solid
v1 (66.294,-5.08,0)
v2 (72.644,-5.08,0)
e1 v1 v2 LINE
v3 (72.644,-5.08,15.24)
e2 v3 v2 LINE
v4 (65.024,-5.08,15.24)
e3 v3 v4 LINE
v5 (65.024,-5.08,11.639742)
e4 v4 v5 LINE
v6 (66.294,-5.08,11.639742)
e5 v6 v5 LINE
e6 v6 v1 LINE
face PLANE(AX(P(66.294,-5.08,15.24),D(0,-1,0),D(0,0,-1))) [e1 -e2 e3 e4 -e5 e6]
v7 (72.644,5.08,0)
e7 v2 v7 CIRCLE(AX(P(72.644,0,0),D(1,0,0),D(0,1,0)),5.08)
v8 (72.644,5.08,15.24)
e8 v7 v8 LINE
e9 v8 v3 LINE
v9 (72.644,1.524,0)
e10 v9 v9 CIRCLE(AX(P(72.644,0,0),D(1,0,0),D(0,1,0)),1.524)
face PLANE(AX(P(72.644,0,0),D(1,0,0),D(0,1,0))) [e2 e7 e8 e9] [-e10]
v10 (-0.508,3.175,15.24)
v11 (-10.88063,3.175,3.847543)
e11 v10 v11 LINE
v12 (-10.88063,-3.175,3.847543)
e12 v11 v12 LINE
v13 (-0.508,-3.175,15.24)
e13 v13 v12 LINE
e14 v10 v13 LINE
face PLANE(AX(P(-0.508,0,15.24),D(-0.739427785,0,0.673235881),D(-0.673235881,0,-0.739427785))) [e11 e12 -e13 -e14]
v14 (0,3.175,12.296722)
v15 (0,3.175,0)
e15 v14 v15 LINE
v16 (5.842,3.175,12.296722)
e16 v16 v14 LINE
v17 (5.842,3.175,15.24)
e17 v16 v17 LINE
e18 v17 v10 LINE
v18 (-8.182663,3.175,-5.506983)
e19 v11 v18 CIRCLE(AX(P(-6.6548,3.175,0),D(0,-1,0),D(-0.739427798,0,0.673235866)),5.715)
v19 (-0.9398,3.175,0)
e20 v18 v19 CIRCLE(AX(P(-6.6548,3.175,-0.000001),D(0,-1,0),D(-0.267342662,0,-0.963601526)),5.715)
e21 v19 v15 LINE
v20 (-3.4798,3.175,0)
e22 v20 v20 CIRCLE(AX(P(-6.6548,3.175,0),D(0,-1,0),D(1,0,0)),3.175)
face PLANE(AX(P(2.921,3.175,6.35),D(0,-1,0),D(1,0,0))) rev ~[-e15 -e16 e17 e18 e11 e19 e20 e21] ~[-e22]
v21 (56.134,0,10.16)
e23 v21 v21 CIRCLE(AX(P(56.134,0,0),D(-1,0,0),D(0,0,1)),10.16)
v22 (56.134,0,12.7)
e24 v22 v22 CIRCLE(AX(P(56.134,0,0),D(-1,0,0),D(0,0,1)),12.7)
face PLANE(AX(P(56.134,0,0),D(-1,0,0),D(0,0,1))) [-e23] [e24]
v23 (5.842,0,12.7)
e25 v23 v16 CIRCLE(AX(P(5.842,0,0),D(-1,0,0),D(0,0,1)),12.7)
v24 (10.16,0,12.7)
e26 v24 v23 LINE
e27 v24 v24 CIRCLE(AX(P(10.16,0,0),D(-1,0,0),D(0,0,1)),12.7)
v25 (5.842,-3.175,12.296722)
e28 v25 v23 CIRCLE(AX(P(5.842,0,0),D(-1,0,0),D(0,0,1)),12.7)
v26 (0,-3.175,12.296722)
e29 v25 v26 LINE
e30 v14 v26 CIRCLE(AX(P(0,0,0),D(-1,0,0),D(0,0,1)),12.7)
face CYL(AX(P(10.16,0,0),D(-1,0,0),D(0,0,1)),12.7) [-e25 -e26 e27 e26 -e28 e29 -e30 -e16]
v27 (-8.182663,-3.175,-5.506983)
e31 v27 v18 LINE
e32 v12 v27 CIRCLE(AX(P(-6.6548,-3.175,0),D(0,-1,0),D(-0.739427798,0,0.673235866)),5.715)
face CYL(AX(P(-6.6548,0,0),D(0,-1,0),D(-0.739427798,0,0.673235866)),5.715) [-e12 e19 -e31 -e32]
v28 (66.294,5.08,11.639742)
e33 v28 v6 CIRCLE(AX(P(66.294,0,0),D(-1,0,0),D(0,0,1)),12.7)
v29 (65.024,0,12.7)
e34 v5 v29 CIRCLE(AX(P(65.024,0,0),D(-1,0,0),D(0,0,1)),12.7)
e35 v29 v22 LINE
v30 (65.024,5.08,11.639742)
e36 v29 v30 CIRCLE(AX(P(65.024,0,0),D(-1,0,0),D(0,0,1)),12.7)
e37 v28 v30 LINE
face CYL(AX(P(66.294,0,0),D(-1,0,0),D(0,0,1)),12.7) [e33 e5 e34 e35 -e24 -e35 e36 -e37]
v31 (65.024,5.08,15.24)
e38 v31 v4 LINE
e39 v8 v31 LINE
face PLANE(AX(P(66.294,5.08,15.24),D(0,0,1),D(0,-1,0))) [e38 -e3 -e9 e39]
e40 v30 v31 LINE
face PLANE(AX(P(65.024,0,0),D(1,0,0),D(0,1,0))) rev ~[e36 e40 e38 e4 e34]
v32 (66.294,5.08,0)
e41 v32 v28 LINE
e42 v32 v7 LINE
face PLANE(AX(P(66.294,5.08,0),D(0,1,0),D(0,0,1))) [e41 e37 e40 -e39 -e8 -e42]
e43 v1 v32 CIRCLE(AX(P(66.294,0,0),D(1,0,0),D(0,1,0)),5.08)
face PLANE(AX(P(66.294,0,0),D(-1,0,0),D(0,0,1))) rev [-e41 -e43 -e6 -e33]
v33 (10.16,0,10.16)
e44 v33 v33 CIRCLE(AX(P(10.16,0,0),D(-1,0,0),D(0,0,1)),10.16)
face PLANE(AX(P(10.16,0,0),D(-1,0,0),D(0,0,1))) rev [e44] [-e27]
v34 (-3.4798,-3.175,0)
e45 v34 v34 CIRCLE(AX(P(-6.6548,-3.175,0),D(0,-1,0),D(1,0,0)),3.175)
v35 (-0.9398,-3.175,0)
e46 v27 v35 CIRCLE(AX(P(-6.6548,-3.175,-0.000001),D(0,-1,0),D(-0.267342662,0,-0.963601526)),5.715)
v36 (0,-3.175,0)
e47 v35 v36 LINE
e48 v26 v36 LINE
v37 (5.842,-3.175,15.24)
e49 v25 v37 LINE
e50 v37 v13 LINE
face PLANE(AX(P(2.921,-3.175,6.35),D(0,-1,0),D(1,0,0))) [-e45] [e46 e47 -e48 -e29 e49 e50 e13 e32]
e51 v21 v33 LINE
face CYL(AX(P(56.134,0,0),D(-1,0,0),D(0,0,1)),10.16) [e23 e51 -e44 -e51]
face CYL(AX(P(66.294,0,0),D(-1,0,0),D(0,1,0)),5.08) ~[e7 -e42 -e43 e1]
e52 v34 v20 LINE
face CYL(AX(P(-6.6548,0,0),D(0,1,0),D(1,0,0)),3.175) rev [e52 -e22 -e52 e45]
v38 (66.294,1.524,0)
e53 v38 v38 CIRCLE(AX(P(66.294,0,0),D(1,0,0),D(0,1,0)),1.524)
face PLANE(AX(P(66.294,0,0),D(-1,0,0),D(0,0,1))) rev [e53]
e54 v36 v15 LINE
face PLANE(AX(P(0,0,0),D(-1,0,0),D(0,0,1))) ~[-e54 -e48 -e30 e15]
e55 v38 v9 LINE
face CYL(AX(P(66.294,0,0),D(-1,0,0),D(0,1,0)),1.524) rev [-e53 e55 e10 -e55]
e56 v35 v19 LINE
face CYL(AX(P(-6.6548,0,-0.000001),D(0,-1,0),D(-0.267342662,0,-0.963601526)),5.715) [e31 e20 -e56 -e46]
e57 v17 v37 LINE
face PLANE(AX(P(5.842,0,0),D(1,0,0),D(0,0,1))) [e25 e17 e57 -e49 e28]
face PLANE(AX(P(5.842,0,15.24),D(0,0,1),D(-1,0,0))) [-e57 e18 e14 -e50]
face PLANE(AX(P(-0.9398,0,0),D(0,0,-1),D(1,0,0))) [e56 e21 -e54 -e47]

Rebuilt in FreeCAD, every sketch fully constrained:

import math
import FreeCAD as App
import Part
import Sketcher

V = App.Vector
Q = App.Units.Quantity

doc = App.newDocument("Part")
params = doc.addObject("Spreadsheet::Sheet", "Params")
for row, (alias, value) in enumerate([
    ("sketch1_width", "0.4 in"),
    ("sketch1_height", "0.5 in"),
    ("sketch1_height2", "0.1 in"),
    ("sketch1_width2", "1.81 in"),
    ("revolution_angle", "360 deg"),
    ("sketch2_diameter", "0.25 in"),
    ("sketch2_height", "0.6 in"),
    ("sketch2_radius", "0.225 in"),
    ("sketch2_width", "0.25 in"),
    ("sketch2_width2", "0.267 in"),
    ("pad1_length", "0.25 in"),
    ("sketch3_radius", "0.2 in"),
    ("sketch3_diameter", "0.12 in"),
    ("sketch3_height", "0.6 in"),
    ("pad2_length", "0.25 in"),
    ("pad2_length2", "0.05 in"),
], start=1):
    params.set(f"A{row}", alias)
    params.set(f"B{row}", "=" + value)
    params.setAlias(f"B{row}", alias)

body = doc.addObject("PartDesign::Body", "Body")

# Sketch on XZ plane
sketch1 = body.newObject("Sketcher::SketchObject", "Sketch")
sketch1.AttachmentSupport = (doc.getObject("XZ_Plane"), [""])
sketch1.MapMode = "FlatFace"
sketch1.addGeometry(Part.LineSegment(V(66.3, 0, 0), V(66.3, 12.7, 0)), False)
sketch1.addGeometry(Part.LineSegment(V(66.3, 12.7, 0), V(56.1, 12.7, 0)), False)
sketch1.addGeometry(Part.LineSegment(V(56.1, 12.7, 0), V(56.1, 10.2, 0)), False)
sketch1.addGeometry(Part.LineSegment(V(56.1, 10.2, 0), V(10.2, 10.2, 0)), False)
sketch1.addGeometry(Part.LineSegment(V(10.2, 10.2, 0), V(10.2, 12.7, 0)), False)
sketch1.addGeometry(Part.LineSegment(V(10.2, 12.7, 0), V(0, 12.7, 0)), False)
sketch1.addGeometry(Part.LineSegment(V(0, 12.7, 0), V(0, 0, 0)), False)
sketch1.addGeometry(Part.LineSegment(V(0, 0, 0), V(66.3, 0, 0)), False)
sketch1.addConstraint(Sketcher.Constraint("Coincident", 0, 2, 1, 1))
sketch1.addConstraint(Sketcher.Constraint("Coincident", 1, 2, 2, 1))
sketch1.addConstraint(Sketcher.Constraint("Coincident", 2, 2, 3, 1))
sketch1.addConstraint(Sketcher.Constraint("Coincident", 3, 2, 4, 1))
sketch1.addConstraint(Sketcher.Constraint("Coincident", 4, 2, 5, 1))
sketch1.addConstraint(Sketcher.Constraint("Coincident", 5, 2, 6, 1))
sketch1.addConstraint(Sketcher.Constraint("Coincident", 6, 2, 7, 1))
sketch1.addConstraint(Sketcher.Constraint("Coincident", 7, 2, 0, 1))
sketch1.addConstraint(Sketcher.Constraint("Vertical", 0))
sketch1.addConstraint(Sketcher.Constraint("Horizontal", 1))
sketch1.addConstraint(Sketcher.Constraint("Vertical", 2))
sketch1.addConstraint(Sketcher.Constraint("Horizontal", 3))
sketch1.addConstraint(Sketcher.Constraint("Vertical", 4))
sketch1.addConstraint(Sketcher.Constraint("Horizontal", 5))
sketch1.addConstraint(Sketcher.Constraint("Vertical", 6))
sketch1.addConstraint(Sketcher.Constraint("Horizontal", 7))
sketch1.addConstraint(Sketcher.Constraint("Coincident", 6, 2, -1, 1))
sketch1.addConstraint(Sketcher.Constraint("Horizontal", 1, 2, 4, 2))
sketch1.addConstraint(Sketcher.Constraint("Equal", 1, 5))
sketch1.addConstraint(Sketcher.Constraint("DistanceX", 1, 2, 1, 1, Q("0.4 in")))
sketch1.addConstraint(Sketcher.Constraint("DistanceY", 0, 1, 0, 2, Q("0.5 in")))
sketch1.addConstraint(Sketcher.Constraint("DistanceY", 2, 2, 2, 1, Q("0.1 in")))
sketch1.addConstraint(Sketcher.Constraint("DistanceX", 3, 2, 3, 1, Q("1.81 in")))
sketch1.setExpression("Constraints[19]", "Params.sketch1_width")
sketch1.setExpression("Constraints[20]", "Params.sketch1_height")
sketch1.setExpression("Constraints[21]", "Params.sketch1_height2")
sketch1.setExpression("Constraints[22]", "Params.sketch1_width2")
revolution = body.newObject("PartDesign::Revolution", "Revolution")
revolution.Profile = sketch1
revolution.ReferenceAxis = (sketch1, ["H_Axis"])
revolution.setExpression("Angle", "Params.revolution_angle")

# Sketch on XZ plane
sketch2 = body.newObject("Sketcher::SketchObject", "Sketch001")
sketch2.AttachmentSupport = (doc.getObject("XZ_Plane"), [""])
sketch2.MapMode = "FlatFace"
sketch2.addGeometry(Part.LineSegment(V(5.8, 0, 0), V(5.8, 15.2, 0)), False)
sketch2.addGeometry(Part.LineSegment(V(5.8, 15.2, 0), V(-0.5, 15.2, 0)), False)
sketch2.addGeometry(Part.LineSegment(V(-0.5, 15.2, 0), V(-10.9, 3.8, 0)), False)
sketch2.addGeometry(Part.ArcOfCircle(Part.Circle(V(-6.7, 0, 0), V(0, 0, 1), 5.7), math.radians(138), math.radians(254)), False)
sketch2.addGeometry(Part.ArcOfCircle(Part.Circle(V(-6.7, 0, 0), V(0, 0, 1), 5.7), math.radians(-106), math.radians(0)), False)
sketch2.addGeometry(Part.LineSegment(V(-0.9, 0, 0), V(5.8, 0, 0)), False)
sketch2.addGeometry(Part.Circle(V(-6.7, 0, 0), V(0, 0, 1), 3.2), False)
sketch2.addConstraint(Sketcher.Constraint("Coincident", 0, 2, 1, 1))
sketch2.addConstraint(Sketcher.Constraint("Coincident", 1, 2, 2, 1))
sketch2.addConstraint(Sketcher.Constraint("Tangent", 2, 2, 3, 1))
sketch2.addConstraint(Sketcher.Constraint("Tangent", 3, 2, 4, 1))
sketch2.addConstraint(Sketcher.Constraint("Coincident", 4, 2, 5, 1))
sketch2.addConstraint(Sketcher.Constraint("Coincident", 5, 2, 0, 1))
sketch2.addConstraint(Sketcher.Constraint("Vertical", 0))
sketch2.addConstraint(Sketcher.Constraint("Horizontal", 1))
sketch2.addConstraint(Sketcher.Constraint("Horizontal", 5))
sketch2.addConstraint(Sketcher.Constraint("Coincident", 6, 3, 3, 3))
sketch2.addConstraint(Sketcher.Constraint("Equal", 3, 4))
sketch2.addConstraint(Sketcher.Constraint("PointOnObject", 3, 3, -1))
sketch2.addConstraint(Sketcher.Constraint("PointOnObject", 4, 2, -1))
sketch2.addConstraint(Sketcher.Constraint("Diameter", 6, Q("0.25 in")))
sketch2.addConstraint(Sketcher.Constraint("DistanceY", 0, 1, 0, 2, Q("0.6 in")))
sketch2.addConstraint(Sketcher.Constraint("Radius", 3, Q("0.225 in")))
sketch2.addConstraint(Sketcher.Constraint("DistanceX", 1, 2, 1, 1, Q("0.25 in")))
sketch2.addConstraint(Sketcher.Constraint("DistanceX", 5, 1, 5, 2, Q("0.267 in")))
sketch2.addConstraint(Sketcher.Constraint("DistanceX", -1, 1, 0, 2, Q("0.23 in")))
sketch2.addConstraint(Sketcher.Constraint("DistanceX", 3, 2, -1, 1, Q("8.182663 mm")))
sketch2.setExpression("Constraints[13]", "Params.sketch2_diameter")
sketch2.setExpression("Constraints[14]", "Params.sketch2_height")
sketch2.setExpression("Constraints[15]", "Params.sketch2_radius")
sketch2.setExpression("Constraints[16]", "Params.sketch2_width")
sketch2.setExpression("Constraints[17]", "Params.sketch2_width2")
pad1 = body.newObject("PartDesign::Pad", "Pad")
pad1.Profile = sketch2
pad1.setExpression("Length", "Params.pad1_length")
pad1.Midplane = True

# Sketch on YZ plane
sketch3 = body.newObject("Sketcher::SketchObject", "Sketch002")
sketch3.AttachmentSupport = (doc.getObject("YZ_Plane"), [""])
sketch3.MapMode = "FlatFace"
sketch3.AttachmentOffset = App.Placement(V(0, 0, 2.61 * 25.4), App.Rotation())
sketch3.addGeometry(Part.ArcOfCircle(Part.Circle(V(0, 0, 0), V(0, 0, 1), 5.1), math.radians(180), math.radians(360)), False)
sketch3.addGeometry(Part.LineSegment(V(5.1, 0, 0), V(5.1, 15.2, 0)), False)
sketch3.addGeometry(Part.LineSegment(V(5.1, 15.2, 0), V(-5.1, 15.2, 0)), False)
sketch3.addGeometry(Part.LineSegment(V(-5.1, 15.2, 0), V(-5.1, 0, 0)), False)
sketch3.addGeometry(Part.Circle(V(0, 0, 0), V(0, 0, 1), 1.5), False)
sketch3.addConstraint(Sketcher.Constraint("Tangent", 0, 2, 1, 1))
sketch3.addConstraint(Sketcher.Constraint("Coincident", 1, 2, 2, 1))
sketch3.addConstraint(Sketcher.Constraint("Coincident", 2, 2, 3, 1))
sketch3.addConstraint(Sketcher.Constraint("Tangent", 3, 2, 0, 1))
sketch3.addConstraint(Sketcher.Constraint("Vertical", 1))
sketch3.addConstraint(Sketcher.Constraint("Horizontal", 2))
sketch3.addConstraint(Sketcher.Constraint("Vertical", 3))
sketch3.addConstraint(Sketcher.Constraint("Coincident", 0, 3, -1, 1))
sketch3.addConstraint(Sketcher.Constraint("Coincident", 4, 3, -1, 1))
sketch3.addConstraint(Sketcher.Constraint("Radius", 0, Q("0.2 in")))
sketch3.addConstraint(Sketcher.Constraint("Diameter", 4, Q("0.12 in")))
sketch3.addConstraint(Sketcher.Constraint("DistanceY", 1, 1, 1, 2, Q("0.6 in")))
sketch3.setExpression("Constraints[9]", "Params.sketch3_radius")
sketch3.setExpression("Constraints[10]", "Params.sketch3_diameter")
sketch3.setExpression("Constraints[11]", "Params.sketch3_height")
pad2 = body.newObject("PartDesign::Pad", "Pad001")
pad2.Profile = sketch3
pad2.Type = "TwoLengths"
pad2.setExpression("Length", "Params.pad2_length")
pad2.setExpression("Length2", "Params.pad2_length2")

doc.recompute()
